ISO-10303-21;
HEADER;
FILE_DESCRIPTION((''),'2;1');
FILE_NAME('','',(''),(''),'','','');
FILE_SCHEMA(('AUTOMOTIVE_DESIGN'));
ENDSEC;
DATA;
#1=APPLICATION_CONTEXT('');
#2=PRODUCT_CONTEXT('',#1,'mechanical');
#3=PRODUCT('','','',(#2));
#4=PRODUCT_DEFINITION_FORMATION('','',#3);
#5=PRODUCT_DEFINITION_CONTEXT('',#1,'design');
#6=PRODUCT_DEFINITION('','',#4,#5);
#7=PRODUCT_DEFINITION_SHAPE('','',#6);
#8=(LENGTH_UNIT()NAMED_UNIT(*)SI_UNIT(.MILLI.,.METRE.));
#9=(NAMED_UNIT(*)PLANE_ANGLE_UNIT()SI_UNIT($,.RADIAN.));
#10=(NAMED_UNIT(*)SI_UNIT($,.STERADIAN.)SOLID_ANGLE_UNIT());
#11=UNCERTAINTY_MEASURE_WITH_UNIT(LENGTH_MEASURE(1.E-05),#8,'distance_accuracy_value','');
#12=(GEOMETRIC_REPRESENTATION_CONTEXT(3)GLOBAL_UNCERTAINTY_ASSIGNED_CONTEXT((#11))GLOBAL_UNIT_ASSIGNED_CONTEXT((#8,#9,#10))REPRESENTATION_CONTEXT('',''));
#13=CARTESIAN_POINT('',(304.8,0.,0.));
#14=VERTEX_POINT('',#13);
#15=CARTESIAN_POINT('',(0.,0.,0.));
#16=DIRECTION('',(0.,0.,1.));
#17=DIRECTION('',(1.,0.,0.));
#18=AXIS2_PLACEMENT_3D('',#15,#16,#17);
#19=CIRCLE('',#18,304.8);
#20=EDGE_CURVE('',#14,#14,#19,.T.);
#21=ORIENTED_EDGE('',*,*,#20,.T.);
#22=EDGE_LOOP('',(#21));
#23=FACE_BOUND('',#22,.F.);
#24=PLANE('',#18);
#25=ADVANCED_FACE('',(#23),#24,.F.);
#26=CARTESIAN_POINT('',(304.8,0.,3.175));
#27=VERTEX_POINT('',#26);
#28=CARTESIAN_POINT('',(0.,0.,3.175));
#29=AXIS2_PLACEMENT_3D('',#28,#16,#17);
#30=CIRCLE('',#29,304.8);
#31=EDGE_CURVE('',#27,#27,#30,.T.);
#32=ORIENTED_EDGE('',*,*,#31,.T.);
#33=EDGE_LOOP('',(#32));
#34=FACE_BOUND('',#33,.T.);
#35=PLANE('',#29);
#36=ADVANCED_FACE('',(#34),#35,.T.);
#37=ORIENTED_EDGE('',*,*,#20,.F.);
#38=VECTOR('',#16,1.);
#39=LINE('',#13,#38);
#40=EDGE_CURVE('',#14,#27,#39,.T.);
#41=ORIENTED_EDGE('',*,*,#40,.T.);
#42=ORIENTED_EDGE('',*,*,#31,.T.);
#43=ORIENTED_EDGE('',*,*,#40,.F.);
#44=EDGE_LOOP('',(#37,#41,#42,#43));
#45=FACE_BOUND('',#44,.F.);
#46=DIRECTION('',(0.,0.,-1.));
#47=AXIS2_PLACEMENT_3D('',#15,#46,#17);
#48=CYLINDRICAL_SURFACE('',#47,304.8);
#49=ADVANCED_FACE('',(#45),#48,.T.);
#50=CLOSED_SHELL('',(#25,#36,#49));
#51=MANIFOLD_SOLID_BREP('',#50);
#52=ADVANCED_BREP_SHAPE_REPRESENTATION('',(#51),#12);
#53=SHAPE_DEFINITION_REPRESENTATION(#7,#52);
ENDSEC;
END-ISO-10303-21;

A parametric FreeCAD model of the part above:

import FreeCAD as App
import Part
import Sketcher
from FreeCAD import Vector
Q = App.Units.Quantity

doc = App.newDocument("Part")
body = doc.addObject("PartDesign::Body", "Body")

# Sketch on XY plane
sketch1 = doc.addObject("Sketcher::SketchObject", "Sketch")
body.addObject(sketch1)
sketch1.AttachmentSupport = (doc.XY_Plane, [""])
sketch1.MapMode = "FlatFace"
sketch1.addGeometry(Part.Circle(Vector(0, 0, 0), Vector(0, 0, 1), 305), False)
sketch1.addConstraint([
    Sketcher.Constraint("Coincident", 0, 3, -1, 1),
    Sketcher.Constraint("Diameter", 0, Q("24 in")),
])
pad1 = doc.addObject("PartDesign::Pad", "Pad")
body.addObject(pad1)
pad1.Profile = sketch1
pad1.Length = Q("0.125 in")

doc.recompute()
